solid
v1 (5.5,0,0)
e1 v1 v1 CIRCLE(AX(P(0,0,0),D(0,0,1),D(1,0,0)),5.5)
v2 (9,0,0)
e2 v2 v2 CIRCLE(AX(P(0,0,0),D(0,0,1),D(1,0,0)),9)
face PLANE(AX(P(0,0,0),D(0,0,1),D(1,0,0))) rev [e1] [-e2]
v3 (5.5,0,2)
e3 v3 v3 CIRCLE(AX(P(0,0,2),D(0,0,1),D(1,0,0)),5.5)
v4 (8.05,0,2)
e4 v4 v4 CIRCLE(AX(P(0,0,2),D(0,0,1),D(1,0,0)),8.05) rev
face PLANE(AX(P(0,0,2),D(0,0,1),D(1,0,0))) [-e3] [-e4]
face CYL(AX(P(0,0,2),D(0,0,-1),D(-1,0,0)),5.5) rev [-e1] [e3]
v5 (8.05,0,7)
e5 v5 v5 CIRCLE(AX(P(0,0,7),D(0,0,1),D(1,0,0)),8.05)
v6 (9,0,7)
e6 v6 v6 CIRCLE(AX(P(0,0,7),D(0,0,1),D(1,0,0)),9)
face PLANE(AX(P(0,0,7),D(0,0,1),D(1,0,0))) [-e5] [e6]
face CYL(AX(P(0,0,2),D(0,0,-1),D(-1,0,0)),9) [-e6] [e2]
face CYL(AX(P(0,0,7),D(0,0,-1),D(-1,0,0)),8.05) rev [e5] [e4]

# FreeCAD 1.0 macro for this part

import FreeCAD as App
import Part
import Sketcher
Q = App.Units.Quantity

doc = App.newDocument("Part")
params = doc.addObject("Spreadsheet::Sheet", "Params")
for row, (alias, value) in enumerate([
    ("sketch1_diameter", "18 mm"),
    ("sketch1_diameter2", "11 mm"),
    ("pad1_length", "2 mm"),
    ("sketch2_diameter", "18 mm"),
    ("sketch2_diameter2", "16.1 mm"),
    ("pad2_length", "5 mm"),
], start=1):
    params.set(f"A{row}", alias)
    params.set(f"B{row}", "=" + value)
    params.setAlias(f"B{row}", alias)

body = doc.addObject("PartDesign::Body", "Body")

sketch1 = body.newObject("Sketcher::SketchObject", "Sketch")
sketch1.AttachmentSupport = (doc.getObject("XY_Plane"), [""])
sketch1.MapMode = "FlatFace"
sketch1.addGeometry([
    Part.Circle(App.Vector(0, 0, 0), App.Vector(0, 0, 1), 9),
    Part.Circle(App.Vector(0, 0, 0), App.Vector(0, 0, 1), 5.5),
], False)
sketch1.addConstraint([
    Sketcher.Constraint("Coincident", 0, 3, -1, 1),
    Sketcher.Constraint("Coincident", 1, 3, -1, 1),
    Sketcher.Constraint("Diameter", 0, Q("18 mm")),
    Sketcher.Constraint("Diameter", 1, Q("11 mm")),
])
sketch1.setExpression("Constraints[2]", "Params.sketch1_diameter")
sketch1.setExpression("Constraints[3]", "Params.sketch1_diameter2")
pad1 = body.newObject("PartDesign::Pad", "Pad")
pad1.Profile = sketch1
pad1.setExpression("Length", "Params.pad1_length")

sketch2 = body.newObject("Sketcher::SketchObject", "Sketch001")
sketch2.AttachmentSupport = (doc.getObject("XY_Plane"), [""])
sketch2.MapMode = "FlatFace"
sketch2.AttachmentOffset = App.Placement(App.Vector(0, 0, 2), App.Rotation())
sketch2.addGeometry([
    Part.Circle(App.Vector(0, 0, 0), App.Vector(0, 0, 1), 9),
    Part.Circle(App.Vector(0, 0, 0), App.Vector(0, 0, 1), 8.05),
], False)
sketch2.addConstraint([
    Sketcher.Constraint("Coincident", 0, 3, -1, 1),
    Sketcher.Constraint("Coincident", 1, 3, -1, 1),
    Sketcher.Constraint("Diameter", 0, Q("18 mm")),
    Sketcher.Constraint("Diameter", 1, Q("16.1 mm")),
])
sketch2.setExpression("Constraints[2]", "Params.sketch2_diameter")
sketch2.setExpression("Constraints[3]", "Params.sketch2_diameter2")
pad2 = body.newObject("PartDesign::Pad", "Pad001")
pad2.Profile = sketch2
pad2.setExpression("Length", "Params.pad2_length")

doc.recompute()
